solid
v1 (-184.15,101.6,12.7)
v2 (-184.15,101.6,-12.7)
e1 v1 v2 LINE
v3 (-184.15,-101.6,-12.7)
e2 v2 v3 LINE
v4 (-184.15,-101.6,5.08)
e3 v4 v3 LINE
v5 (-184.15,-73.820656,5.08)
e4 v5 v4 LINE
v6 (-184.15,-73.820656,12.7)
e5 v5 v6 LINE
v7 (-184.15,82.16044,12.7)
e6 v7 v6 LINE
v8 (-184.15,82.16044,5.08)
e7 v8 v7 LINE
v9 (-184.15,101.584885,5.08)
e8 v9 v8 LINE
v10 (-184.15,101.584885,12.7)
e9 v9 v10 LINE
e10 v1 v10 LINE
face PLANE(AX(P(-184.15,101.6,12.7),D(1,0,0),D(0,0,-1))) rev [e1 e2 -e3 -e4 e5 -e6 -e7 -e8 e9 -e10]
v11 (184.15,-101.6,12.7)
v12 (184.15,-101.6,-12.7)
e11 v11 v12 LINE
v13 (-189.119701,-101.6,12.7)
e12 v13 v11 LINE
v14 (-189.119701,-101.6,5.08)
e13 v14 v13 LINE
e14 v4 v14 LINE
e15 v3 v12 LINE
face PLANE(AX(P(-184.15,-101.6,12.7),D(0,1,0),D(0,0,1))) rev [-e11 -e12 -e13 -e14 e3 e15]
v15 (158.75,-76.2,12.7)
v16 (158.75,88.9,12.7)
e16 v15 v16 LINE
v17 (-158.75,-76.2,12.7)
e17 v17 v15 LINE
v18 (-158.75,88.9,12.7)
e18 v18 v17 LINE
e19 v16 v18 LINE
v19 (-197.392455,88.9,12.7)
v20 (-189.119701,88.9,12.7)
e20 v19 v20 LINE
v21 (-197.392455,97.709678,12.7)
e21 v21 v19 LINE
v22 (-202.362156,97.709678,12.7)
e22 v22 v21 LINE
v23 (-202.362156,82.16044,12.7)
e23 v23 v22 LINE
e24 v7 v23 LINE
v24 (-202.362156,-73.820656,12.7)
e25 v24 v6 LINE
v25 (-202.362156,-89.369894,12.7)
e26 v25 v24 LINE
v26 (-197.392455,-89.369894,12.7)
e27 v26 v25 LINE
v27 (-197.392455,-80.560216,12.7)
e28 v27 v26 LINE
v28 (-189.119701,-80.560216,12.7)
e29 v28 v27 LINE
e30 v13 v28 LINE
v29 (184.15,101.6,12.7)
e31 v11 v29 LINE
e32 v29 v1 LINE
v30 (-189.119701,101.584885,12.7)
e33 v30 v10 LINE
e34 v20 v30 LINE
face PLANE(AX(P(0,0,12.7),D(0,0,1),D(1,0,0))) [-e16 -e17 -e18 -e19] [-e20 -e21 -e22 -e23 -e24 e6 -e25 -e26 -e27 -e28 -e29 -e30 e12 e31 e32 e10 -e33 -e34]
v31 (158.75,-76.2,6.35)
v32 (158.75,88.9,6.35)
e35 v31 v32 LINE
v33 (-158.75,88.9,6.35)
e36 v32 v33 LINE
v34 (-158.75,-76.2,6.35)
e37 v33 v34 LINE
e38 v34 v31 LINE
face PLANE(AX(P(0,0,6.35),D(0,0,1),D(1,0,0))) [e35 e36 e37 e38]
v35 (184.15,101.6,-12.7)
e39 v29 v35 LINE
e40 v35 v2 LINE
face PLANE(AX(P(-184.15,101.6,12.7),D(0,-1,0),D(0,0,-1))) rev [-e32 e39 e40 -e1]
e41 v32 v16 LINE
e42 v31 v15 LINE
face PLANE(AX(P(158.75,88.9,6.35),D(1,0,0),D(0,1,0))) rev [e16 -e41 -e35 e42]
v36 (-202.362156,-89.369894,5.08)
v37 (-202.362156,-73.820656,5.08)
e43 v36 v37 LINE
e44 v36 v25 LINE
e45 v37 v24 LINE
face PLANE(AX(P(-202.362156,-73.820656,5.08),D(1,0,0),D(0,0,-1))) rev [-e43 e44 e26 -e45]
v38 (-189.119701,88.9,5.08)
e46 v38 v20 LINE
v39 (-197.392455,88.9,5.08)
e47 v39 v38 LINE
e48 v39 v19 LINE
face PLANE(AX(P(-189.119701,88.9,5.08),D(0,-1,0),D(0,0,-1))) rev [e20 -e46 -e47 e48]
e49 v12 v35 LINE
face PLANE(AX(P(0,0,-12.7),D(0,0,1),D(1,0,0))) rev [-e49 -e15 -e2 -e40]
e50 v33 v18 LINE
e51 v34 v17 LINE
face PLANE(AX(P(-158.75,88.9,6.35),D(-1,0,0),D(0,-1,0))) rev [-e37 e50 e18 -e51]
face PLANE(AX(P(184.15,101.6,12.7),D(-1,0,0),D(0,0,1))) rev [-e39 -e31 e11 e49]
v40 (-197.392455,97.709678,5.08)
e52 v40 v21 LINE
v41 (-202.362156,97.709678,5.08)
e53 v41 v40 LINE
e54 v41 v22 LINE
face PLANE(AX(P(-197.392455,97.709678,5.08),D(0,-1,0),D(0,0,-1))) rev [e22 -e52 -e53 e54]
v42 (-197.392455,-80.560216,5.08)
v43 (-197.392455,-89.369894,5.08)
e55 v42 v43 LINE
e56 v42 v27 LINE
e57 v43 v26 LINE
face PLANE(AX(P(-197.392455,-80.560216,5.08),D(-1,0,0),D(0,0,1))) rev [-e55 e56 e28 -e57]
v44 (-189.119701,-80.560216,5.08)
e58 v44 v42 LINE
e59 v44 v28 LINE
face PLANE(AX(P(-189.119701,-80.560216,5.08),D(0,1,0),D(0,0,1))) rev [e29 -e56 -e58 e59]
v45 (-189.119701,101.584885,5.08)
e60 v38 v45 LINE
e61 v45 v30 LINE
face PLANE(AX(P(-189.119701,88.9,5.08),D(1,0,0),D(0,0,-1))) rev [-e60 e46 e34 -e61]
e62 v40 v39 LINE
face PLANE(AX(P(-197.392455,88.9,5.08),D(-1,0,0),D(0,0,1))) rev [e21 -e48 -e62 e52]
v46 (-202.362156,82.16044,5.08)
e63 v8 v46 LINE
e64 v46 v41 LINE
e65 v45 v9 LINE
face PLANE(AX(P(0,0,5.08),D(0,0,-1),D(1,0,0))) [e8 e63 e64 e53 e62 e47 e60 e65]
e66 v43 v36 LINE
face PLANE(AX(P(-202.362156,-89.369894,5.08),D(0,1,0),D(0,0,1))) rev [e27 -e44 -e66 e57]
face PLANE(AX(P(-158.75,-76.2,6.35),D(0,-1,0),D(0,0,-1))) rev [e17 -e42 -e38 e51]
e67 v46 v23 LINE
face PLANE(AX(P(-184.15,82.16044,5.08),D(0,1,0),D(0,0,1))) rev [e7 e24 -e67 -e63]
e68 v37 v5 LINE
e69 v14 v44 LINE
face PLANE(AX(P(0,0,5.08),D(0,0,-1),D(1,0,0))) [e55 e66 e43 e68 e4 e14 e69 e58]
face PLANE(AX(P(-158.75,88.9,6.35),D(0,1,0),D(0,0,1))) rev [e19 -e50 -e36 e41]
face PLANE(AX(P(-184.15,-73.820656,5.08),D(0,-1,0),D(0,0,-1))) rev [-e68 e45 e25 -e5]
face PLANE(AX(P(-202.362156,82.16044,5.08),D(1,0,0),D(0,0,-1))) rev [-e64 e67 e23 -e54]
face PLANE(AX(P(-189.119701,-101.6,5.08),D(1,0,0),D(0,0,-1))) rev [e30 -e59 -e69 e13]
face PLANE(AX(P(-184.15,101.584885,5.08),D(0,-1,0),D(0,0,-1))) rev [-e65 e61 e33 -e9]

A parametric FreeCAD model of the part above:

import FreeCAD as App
import Part
import Sketcher
Q = App.Units.Quantity

doc = App.newDocument("Part")
body = doc.addObject("PartDesign::Body", "Body")

# Sketch on XY plane
sketch1 = doc.addObject("Sketcher::SketchObject", "Sketch")
body.addObject(sketch1)
sketch1.AttachmentSupport = (doc.XY_Plane, [""])
sketch1.MapMode = "FlatFace"
sketch1.addGeometry([
    Part.LineSegment(App.Vector(-184, 102, 0), App.Vector(-184, -102, 0)),
    Part.LineSegment(App.Vector(-184, -102, 0), App.Vector(184, -102, 0)),
    Part.LineSegment(App.Vector(184, -102, 0), App.Vector(184, 102, 0)),
    Part.LineSegment(App.Vector(184, 102, 0), App.Vector(-184, 102, 0)),
], False)
sketch1.addConstraint([
    Sketcher.Constraint("Coincident", 0, 2, 1, 1),
    Sketcher.Constraint("Coincident", 1, 2, 2, 1),
    Sketcher.Constraint("Coincident", 2, 2, 3, 1),
    Sketcher.Constraint("Coincident", 3, 2, 0, 1),
    Sketcher.Constraint("Vertical", 0),
    Sketcher.Constraint("Horizontal", 1),
    Sketcher.Constraint("Vertical", 2),
    Sketcher.Constraint("Horizontal", 3),
    Sketcher.Constraint("Symmetric", 0, 2, 2, 2, -1, 1),
    Sketcher.Constraint("DistanceY", 0, 2, 0, 1, Q("8 in")),
    Sketcher.Constraint("DistanceX", 1, 1, 1, 2, Q("14.5 in")),
])
pad1 = doc.addObject("PartDesign::Pad", "Pad")
body.addObject(pad1)
pad1.Profile = sketch1
pad1.Length = Q("1 in")
pad1.Midplane = True

# Sketch on XY plane
sketch2 = doc.addObject("Sketcher::SketchObject", "Sketch001")
body.addObject(sketch2)
sketch2.AttachmentSupport = (doc.XY_Plane, [""])
sketch2.MapMode = "FlatFace"
sketch2.AttachmentOffset = App.Placement(App.Vector(0, 0, 0.5 * 25.4), App.Rotation())
sketch2.addGeometry([
    Part.LineSegment(App.Vector(-159, 89, 0), App.Vector(-159, -76, 0)),
    Part.LineSegment(App.Vector(-159, -76, 0), App.Vector(159, -76, 0)),
    Part.LineSegment(App.Vector(159, -76, 0), App.Vector(159, 89, 0)),
    Part.LineSegment(App.Vector(159, 89, 0), App.Vector(-159, 89, 0)),
], False)
sketch2.addConstraint([
    Sketcher.Constraint("Coincident", 0, 2, 1, 1),
    Sketcher.Constraint("Coincident", 1, 2, 2, 1),
    Sketcher.Constraint("Coincident", 2, 2, 3, 1),
    Sketcher.Constraint("Coincident", 3, 2, 0, 1),
    Sketcher.Constraint("Vertical", 0),
    Sketcher.Constraint("Horizontal", 1),
    Sketcher.Constraint("Vertical", 2),
    Sketcher.Constraint("Horizontal", 3),
    Sketcher.Constraint("DistanceX", 1, 1, 1, 2, Q("12.5 in")),
    Sketcher.Constraint("DistanceY", 0, 2, 0, 1, Q("6.5 in")),
    Sketcher.Constraint("DistanceY", 0, 2, -1, 1, Q("3 in")),
    Sketcher.Constraint("DistanceX", 0, 2, -1, 1, Q("6.25 in")),
])
pocket1 = doc.addObject("PartDesign::Pocket", "Pocket")
body.addObject(pocket1)
pocket1.Profile = sketch2
pocket1.Length = Q("0.25 in")

# Sketch on XY plane
sketch3 = doc.addObject("Sketcher::SketchObject", "Sketch002")
body.addObject(sketch3)
sketch3.AttachmentSupport = (doc.XY_Plane, [""])
sketch3.MapMode = "FlatFace"
sketch3.AttachmentOffset = App.Placement(App.Vector(0, 0, 0.5 * 25.4), App.Rotation())
sketch3.addGeometry([
    Part.LineSegment(App.Vector(184.2, -101.6, 0), App.Vector(189.1, -101.6, 0)),  # 0
    Part.LineSegment(App.Vector(189.1, -101.6, 0), App.Vector(189.1, -80.6, 0)),  # 1
    Part.LineSegment(App.Vector(189.1, -80.6, 0), App.Vector(197.4, -80.6, 0)),  # 2
    Part.LineSegment(App.Vector(197.4, -80.6, 0), App.Vector(197.4, -89.4, 0)),  # 3
    Part.LineSegment(App.Vector(197.4, -89.4, 0), App.Vector(202.4, -89.4, 0)),  # 4
    Part.LineSegment(App.Vector(202.4, -89.4, 0), App.Vector(202.4, -73.8, 0)),  # 5
    Part.LineSegment(App.Vector(202.4, -73.8, 0), App.Vector(184.2, -73.8, 0)),  # 6
    Part.LineSegment(App.Vector(184.2, -73.8, 0), App.Vector(184.2, -101.6, 0)),  # 7
    Part.LineSegment(App.Vector(197.4, 88.9, 0), App.Vector(189.1, 88.9, 0)),  # 8
    Part.LineSegment(App.Vector(189.1, 88.9, 0), App.Vector(189.1, 101.6, 0)),  # 9
    Part.LineSegment(App.Vector(189.1, 101.6, 0), App.Vector(184.2, 101.6, 0)),  # 10
    Part.LineSegment(App.Vector(184.2, 101.6, 0), App.Vector(184.2, 82.2, 0)),  # 11
    Part.LineSegment(App.Vector(184.2, 82.2, 0), App.Vector(202.4, 82.2, 0)),  # 12
    Part.LineSegment(App.Vector(202.4, 82.2, 0), App.Vector(202.4, 97.7, 0)),  # 13
    Part.LineSegment(App.Vector(202.4, 97.7, 0), App.Vector(197.4, 97.7, 0)),  # 14
    Part.LineSegment(App.Vector(197.4, 97.7, 0), App.Vector(197.4, 88.9, 0)),  # 15
], False)
sketch3.addConstraint([
    Sketcher.Constraint("Coincident", 0, 2, 1, 1),
    Sketcher.Constraint("Coincident", 1, 2, 2, 1),
    Sketcher.Constraint("Coincident", 2, 2, 3, 1),
    Sketcher.Constraint("Coincident", 3, 2, 4, 1),
    Sketcher.Constraint("Coincident", 4, 2, 5, 1),
    Sketcher.Constraint("Coincident", 5, 2, 6, 1),
    Sketcher.Constraint("Coincident", 6, 2, 7, 1),
    Sketcher.Constraint("Coincident", 7, 2, 0, 1),
    Sketcher.Constraint("Coincident", 8, 2, 9, 1),
    Sketcher.Constraint("Coincident", 9, 2, 10, 1),
    Sketcher.Constraint("Coincident", 10, 2, 11, 1),
    Sketcher.Constraint("Coincident", 11, 2, 12, 1),
    Sketcher.Constraint("Coincident", 12, 2, 13, 1),
    Sketcher.Constraint("Coincident", 13, 2, 14, 1),
    Sketcher.Constraint("Coincident", 14, 2, 15, 1),
    Sketcher.Constraint("Coincident", 15, 2, 8, 1),
    Sketcher.Constraint("Horizontal", 0),
    Sketcher.Constraint("Vertical", 1),
    Sketcher.Constraint("Horizontal", 2),
    Sketcher.Constraint("Vertical", 3),
    Sketcher.Constraint("Horizontal", 4),
    Sketcher.Constraint("Vertical", 5),
    Sketcher.Constraint("Horizontal", 6),
    Sketcher.Constraint("Vertical", 7),
    Sketcher.Constraint("Horizontal", 8),
    Sketcher.Constraint("Vertical", 9),
    Sketcher.Constraint("Horizontal", 10),
    Sketcher.Constraint("Vertical", 11),
    Sketcher.Constraint("Horizontal", 12),
    Sketcher.Constraint("Vertical", 13),
    Sketcher.Constraint("Horizontal", 14),
    Sketcher.Constraint("Vertical", 15),
    Sketcher.Constraint("Vertical", 1, 2, 8, 2),
    Sketcher.Constraint("Vertical", 7, 2, 10, 2),
    Sketcher.Constraint("Vertical", 5, 2, 12, 2),
    Sketcher.Constraint("Vertical", 3, 2, 14, 2),
    Sketcher.Constraint("Equal", 0, 4),
    Sketcher.Constraint("Equal", 5, 13),
    Sketcher.Constraint("Equal", 3, 15),
    Sketcher.Constraint("DistanceY", 0, 2, -1, 1, Q("4 in")),
    Sketcher.Constraint("DistanceY", -1, 1, 8, 2, Q("3.5 in")),
    Sketcher.Constraint("DistanceX", -1, 1, 6, 2, Q("7.25 in")),
    Sketcher.Constraint("DistanceX", 0, 1, 0, 2, 4.969701),
    Sketcher.Constraint("DistanceY", 1, 2, 9, 2, 182.145101),
    Sketcher.Constraint("DistanceX", 2, 1, 2, 2, 8.272755),
    Sketcher.Constraint("DistanceY", 1, 1, 1, 2, 21.039784),
    Sketcher.Constraint("DistanceY", 3, 2, 3, 1, 8.809678),
    Sketcher.Constraint("DistanceY", 5, 1, 5, 2, 15.549238),
])
pad2 = doc.addObject("PartDesign::Pad", "Pad001")
body.addObject(pad2)
pad2.Profile = sketch3
pad2.Length = Q("0.3 in")
pad2.Reversed = True
doc.recompute()

mirrored = doc.addObject("PartDesign::Mirrored", "Mirrored")
body.addObject(mirrored)
mirrored.Originals = [pad2]
mirrored.MirrorPlane = (doc.YZ_Plane, [""])
body.Tip = mirrored

# Sketch on XY plane
sketch4 = doc.addObject("Sketcher::SketchObject", "Sketch003")
body.addObject(sketch4)
sketch4.AttachmentSupport = (doc.XY_Plane, [""])
sketch4.MapMode = "FlatFace"
sketch4.AttachmentOffset = App.Placement(App.Vector(0, 0, 0.5 * 25.4), App.Rotation())
sketch4.addGeometry([
    Part.LineSegment(App.Vector(202.4, -73.8, 0), App.Vector(184.2, -73.8, 0)),  # 0
    Part.LineSegment(App.Vector(184.2, -73.8, 0), App.Vector(184.2, -101.6, 0)),  # 1
    Part.LineSegment(App.Vector(184.2, -101.6, 0), App.Vector(189.1, -101.6, 0)),  # 2
    Part.LineSegment(App.Vector(189.1, -101.6, 0), App.Vector(189.1, -80.6, 0)),  # 3
    Part.LineSegment(App.Vector(189.1, -80.6, 0), App.Vector(197.4, -80.6, 0)),  # 4
    Part.LineSegment(App.Vector(197.4, -80.6, 0), App.Vector(197.4, -89.4, 0)),  # 5
    Part.LineSegment(App.Vector(197.4, -89.4, 0), App.Vector(202.4, -89.4, 0)),  # 6
    Part.LineSegment(App.Vector(202.4, -89.4, 0), App.Vector(202.4, -73.8, 0)),  # 7
    Part.LineSegment(App.Vector(184.2, 101.6, 0), App.Vector(184.2, 82.2, 0)),  # 8
    Part.LineSegment(App.Vector(184.2, 82.2, 0), App.Vector(202.4, 82.2, 0)),  # 9
    Part.LineSegment(App.Vector(202.4, 82.2, 0), App.Vector(202.4, 97.7, 0)),  # 10
    Part.LineSegment(App.Vector(202.4, 97.7, 0), App.Vector(197.4, 97.7, 0)),  # 11
    Part.LineSegment(App.Vector(197.4, 97.7, 0), App.Vector(197.4, 88.9, 0)),  # 12
    Part.LineSegment(App.Vector(197.4, 88.9, 0), App.Vector(189.1, 88.9, 0)),  # 13
    Part.LineSegment(App.Vector(189.1, 88.9, 0), App.Vector(189.1, 101.6, 0)),  # 14
    Part.LineSegment(App.Vector(189.1, 101.6, 0), App.Vector(184.2, 101.6, 0)),  # 15
], False)
sketch4.addConstraint([
    Sketcher.Constraint("Coincident", 0, 2, 1, 1),
    Sketcher.Constraint("Coincident", 1, 2, 2, 1),
    Sketcher.Constraint("Coincident", 2, 2, 3, 1),
    Sketcher.Constraint("Coincident", 3, 2, 4, 1),
    Sketcher.Constraint("Coincident", 4, 2, 5, 1),
    Sketcher.Constraint("Coincident", 5, 2, 6, 1),
    Sketcher.Constraint("Coincident", 6, 2, 7, 1),
    Sketcher.Constraint("Coincident", 7, 2, 0, 1),
    Sketcher.Constraint("Coincident", 8, 2, 9, 1),
    Sketcher.Constraint("Coincident", 9, 2, 10, 1),
    Sketcher.Constraint("Coincident", 10, 2, 11, 1),
    Sketcher.Constraint("Coincident", 11, 2, 12, 1),
    Sketcher.Constraint("Coincident", 12, 2, 13, 1),
    Sketcher.Constraint("Coincident", 13, 2, 14, 1),
    Sketcher.Constraint("Coincident", 14, 2, 15, 1),
    Sketcher.Constraint("Coincident", 15, 2, 8, 1),
    Sketcher.Constraint("Horizontal", 0),
    Sketcher.Constraint("Vertical", 1),
    Sketcher.Constraint("Horizontal", 2),
    Sketcher.Constraint("Vertical", 3),
    Sketcher.Constraint("Horizontal", 4),
    Sketcher.Constraint("Vertical", 5),
    Sketcher.Constraint("Horizontal", 6),
    Sketcher.Constraint("Vertical", 7),
    Sketcher.Constraint("Vertical", 8),
    Sketcher.Constraint("Horizontal", 9),
    Sketcher.Constraint("Vertical", 10),
    Sketcher.Constraint("Horizontal", 11),
    Sketcher.Constraint("Vertical", 12),
    Sketcher.Constraint("Horizontal", 13),
    Sketcher.Constraint("Vertical", 14),
    Sketcher.Constraint("Horizontal", 15),
    Sketcher.Constraint("Vertical", 1, 2, 8, 2),
    Sketcher.Constraint("Vertical", 7, 2, 9, 2),
    Sketcher.Constraint("Vertical", 5, 2, 11, 2),
    Sketcher.Constraint("Vertical", 3, 2, 13, 2),
    Sketcher.Constraint("Equal", 2, 6),
    Sketcher.Constraint("Equal", 7, 10),
    Sketcher.Constraint("Equal", 5, 12),
    Sketcher.Constraint("DistanceY", 1, 2, -1, 1, Q("4 in")),
    Sketcher.Constraint("DistanceY", -1, 1, 12, 2, Q("3.5 in")),
    Sketcher.Constraint("DistanceX", -1, 1, 0, 2, Q("7.25 in")),
    Sketcher.Constraint("DistanceX", 2, 1, 2, 2, 4.969701),
    Sketcher.Constraint("DistanceX", 0, 2, 0, 1, 18.212156),
    Sketcher.Constraint("DistanceY", 1, 2, 1, 1, 27.779344),
    Sketcher.Constraint("DistanceY", 3, 1, 3, 2, 21.039784),
    Sketcher.Constraint("DistanceY", 5, 2, 5, 1, 8.809678),
    Sketcher.Constraint("DistanceY", 8, 2, 8, 1, 19.424445),
])
pocket2 = doc.addObject("PartDesign::Pocket", "Pocket001")
body.addObject(pocket2)
pocket2.Profile = sketch4
pocket2.Length = Q("0.8 in")

doc.recompute()
